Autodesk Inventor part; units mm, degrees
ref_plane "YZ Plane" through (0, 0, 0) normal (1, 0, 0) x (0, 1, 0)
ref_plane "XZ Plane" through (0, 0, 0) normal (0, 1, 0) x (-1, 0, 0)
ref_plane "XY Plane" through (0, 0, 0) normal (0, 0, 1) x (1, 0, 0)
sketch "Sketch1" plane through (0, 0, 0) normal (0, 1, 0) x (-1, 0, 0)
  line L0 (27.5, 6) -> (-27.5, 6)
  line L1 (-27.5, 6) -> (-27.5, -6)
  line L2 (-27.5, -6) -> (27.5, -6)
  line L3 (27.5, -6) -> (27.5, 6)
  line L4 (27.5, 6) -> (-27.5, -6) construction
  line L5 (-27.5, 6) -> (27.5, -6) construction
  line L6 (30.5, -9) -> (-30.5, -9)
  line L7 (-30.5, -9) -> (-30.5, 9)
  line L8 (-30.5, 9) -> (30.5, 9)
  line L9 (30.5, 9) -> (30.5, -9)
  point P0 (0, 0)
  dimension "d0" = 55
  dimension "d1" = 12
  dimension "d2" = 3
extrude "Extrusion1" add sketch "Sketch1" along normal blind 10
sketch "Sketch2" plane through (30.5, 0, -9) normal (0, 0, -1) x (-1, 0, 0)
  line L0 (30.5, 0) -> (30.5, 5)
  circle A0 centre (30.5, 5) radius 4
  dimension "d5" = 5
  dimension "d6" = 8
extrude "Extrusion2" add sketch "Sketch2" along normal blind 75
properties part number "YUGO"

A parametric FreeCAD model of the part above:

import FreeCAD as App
import Part
import Sketcher

V = App.Vector


def add_polygon(sketch, points):
    """Adds a closed chain of lines whose ends are joined by coincident constraints."""
    first, n = sketch.GeometryCount, len(points)
    for a, b in zip(points, points[1:] + points[:1]):
        sketch.addGeometry(Part.LineSegment(App.Vector(*a, 0), App.Vector(*b, 0)), False)
    for i in range(n):
        sketch.addConstraint(Sketcher.Constraint("Coincident", first + i, 2, first + (i + 1) % n, 1))

doc = App.newDocument("Part")
body = doc.addObject("PartDesign::Body", "Body")

sketch1 = body.newObject("Sketcher::SketchObject", "Sketch")
sketch1.AttachmentSupport = (doc.getObject("XZ_Plane"), [""])
sketch1.MapMode = "FlatFace"
add_polygon(sketch1, [(30, -9), (-30, -9), (-30, 9), (30, 9)])
add_polygon(sketch1, [(28, 6), (-28, 6), (-28, -6), (28, -6)])
sketch1.addConstraint([
    Sketcher.Constraint("Horizontal", 0),
    Sketcher.Constraint("Vertical", 1),
    Sketcher.Constraint("Horizontal", 2),
    Sketcher.Constraint("Vertical", 3),
    Sketcher.Constraint("Horizontal", 4),
    Sketcher.Constraint("Vertical", 5),
    Sketcher.Constraint("Horizontal", 6),
    Sketcher.Constraint("Vertical", 7),
    Sketcher.Constraint("Symmetric", 0, 2, 2, 2, -1, 1),
    Sketcher.Constraint("Symmetric", 4, 2, 6, 2, -1, 1),
    Sketcher.Constraint("DistanceX", 4, 2, 4, 1, 55.0),
    Sketcher.Constraint("DistanceY", 5, 2, 5, 1, 12.0),
    Sketcher.Constraint("DistanceX", 1, 2, 4, 2, 3.0),
    Sketcher.Constraint("DistanceY", 4, 2, 1, 2, 3.0),
])
pad1 = body.newObject("PartDesign::Pad", "Pad")
pad1.Profile = sketch1
pad1.Length = 10
pad1.Reversed = True

sketch2 = body.newObject("Sketcher::SketchObject", "Sketch001")
sketch2.AttachmentSupport = (doc.getObject("XY_Plane"), [""])
sketch2.MapMode = "FlatFace"
sketch2.AttachmentOffset = App.Placement(V(0, 0, -9), App.Rotation())
sketch2.addGeometry(Part.Circle(V(0, 5, 0), V(0, 0, 1), 4), False)
sketch2.addConstraint([
    Sketcher.Constraint("PointOnObject", 0, 3, -2),
    Sketcher.Constraint("Diameter", 0, 8.0),
    Sketcher.Constraint("DistanceY", -1, 1, 0, 3, 5.0),
])
pad2 = body.newObject("PartDesign::Pad", "Pad001")
pad2.Profile = sketch2
pad2.Length = 75
pad2.Reversed = True

doc.recompute()
